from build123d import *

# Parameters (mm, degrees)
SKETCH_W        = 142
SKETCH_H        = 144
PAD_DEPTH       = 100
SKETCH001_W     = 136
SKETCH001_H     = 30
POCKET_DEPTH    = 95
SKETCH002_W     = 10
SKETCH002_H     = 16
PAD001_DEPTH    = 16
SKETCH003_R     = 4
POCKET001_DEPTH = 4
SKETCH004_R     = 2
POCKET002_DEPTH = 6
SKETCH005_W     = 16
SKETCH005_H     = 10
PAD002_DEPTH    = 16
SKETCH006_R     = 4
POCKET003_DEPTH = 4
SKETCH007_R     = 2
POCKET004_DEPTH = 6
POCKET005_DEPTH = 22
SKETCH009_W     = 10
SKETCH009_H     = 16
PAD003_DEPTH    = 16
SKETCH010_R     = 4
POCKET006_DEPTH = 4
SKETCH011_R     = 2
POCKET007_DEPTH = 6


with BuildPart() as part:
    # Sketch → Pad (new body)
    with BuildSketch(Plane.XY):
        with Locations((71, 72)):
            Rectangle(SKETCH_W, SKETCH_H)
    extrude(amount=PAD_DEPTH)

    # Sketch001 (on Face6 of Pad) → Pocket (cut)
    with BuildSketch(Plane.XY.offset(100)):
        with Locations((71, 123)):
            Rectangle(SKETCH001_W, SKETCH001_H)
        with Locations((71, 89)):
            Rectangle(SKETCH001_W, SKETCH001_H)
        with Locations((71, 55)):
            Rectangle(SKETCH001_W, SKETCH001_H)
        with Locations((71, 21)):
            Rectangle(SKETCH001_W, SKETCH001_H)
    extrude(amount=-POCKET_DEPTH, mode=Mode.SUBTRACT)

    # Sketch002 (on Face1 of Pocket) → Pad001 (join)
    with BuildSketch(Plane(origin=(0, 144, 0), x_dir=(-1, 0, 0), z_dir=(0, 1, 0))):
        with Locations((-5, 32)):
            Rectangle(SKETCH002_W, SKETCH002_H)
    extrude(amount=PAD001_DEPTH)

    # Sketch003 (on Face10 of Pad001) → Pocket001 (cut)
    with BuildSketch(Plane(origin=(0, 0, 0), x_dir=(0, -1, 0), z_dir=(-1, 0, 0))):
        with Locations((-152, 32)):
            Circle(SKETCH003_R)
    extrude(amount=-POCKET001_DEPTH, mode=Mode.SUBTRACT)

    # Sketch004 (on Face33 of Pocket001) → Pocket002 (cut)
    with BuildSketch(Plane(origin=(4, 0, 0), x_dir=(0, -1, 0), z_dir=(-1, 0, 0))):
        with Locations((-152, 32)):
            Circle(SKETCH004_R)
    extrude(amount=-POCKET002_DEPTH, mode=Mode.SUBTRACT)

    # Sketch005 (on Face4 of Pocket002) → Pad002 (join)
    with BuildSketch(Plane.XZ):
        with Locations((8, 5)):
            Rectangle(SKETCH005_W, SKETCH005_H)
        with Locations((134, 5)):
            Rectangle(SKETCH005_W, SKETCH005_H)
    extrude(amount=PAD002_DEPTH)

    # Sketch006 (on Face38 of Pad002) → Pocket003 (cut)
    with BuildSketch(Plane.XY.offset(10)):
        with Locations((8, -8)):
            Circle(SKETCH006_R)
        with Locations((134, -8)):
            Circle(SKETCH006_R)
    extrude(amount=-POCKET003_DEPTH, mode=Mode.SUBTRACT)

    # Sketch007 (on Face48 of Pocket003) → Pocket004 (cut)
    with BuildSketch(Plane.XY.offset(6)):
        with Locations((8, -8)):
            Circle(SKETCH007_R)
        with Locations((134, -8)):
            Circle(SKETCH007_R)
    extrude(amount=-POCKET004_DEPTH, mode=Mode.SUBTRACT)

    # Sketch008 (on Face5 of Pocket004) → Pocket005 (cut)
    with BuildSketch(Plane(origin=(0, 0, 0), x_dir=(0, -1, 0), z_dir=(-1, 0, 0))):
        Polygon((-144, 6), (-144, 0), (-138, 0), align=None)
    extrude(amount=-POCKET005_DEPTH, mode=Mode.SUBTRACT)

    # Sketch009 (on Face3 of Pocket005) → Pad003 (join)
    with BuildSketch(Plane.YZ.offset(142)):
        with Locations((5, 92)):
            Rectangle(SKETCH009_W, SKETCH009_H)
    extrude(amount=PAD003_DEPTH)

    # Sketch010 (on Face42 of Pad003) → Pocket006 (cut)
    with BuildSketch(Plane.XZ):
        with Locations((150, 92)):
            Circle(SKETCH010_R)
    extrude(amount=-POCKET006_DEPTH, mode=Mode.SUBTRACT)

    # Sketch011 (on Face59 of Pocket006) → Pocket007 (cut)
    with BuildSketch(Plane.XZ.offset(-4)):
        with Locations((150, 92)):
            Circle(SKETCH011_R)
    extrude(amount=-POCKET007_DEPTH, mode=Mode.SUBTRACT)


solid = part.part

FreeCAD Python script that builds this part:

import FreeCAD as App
import Part
import Sketcher
Q = App.Units.Quantity

doc = App.newDocument("Part")
params = doc.addObject("Spreadsheet::Sheet", "Params")
for row, (alias, value) in enumerate([
    ("sketch1_width", "142 mm"),
    ("sketch1_height", "144 mm"),
    ("pad1_length", "100 mm"),
    ("sketch2_width", "136 mm"),
    ("sketch2_height", "30 mm"),
    ("pocket1_length", "95 mm"),
    ("sketch3_width", "10 mm"),
    ("sketch3_height", "16 mm"),
    ("pad2_length", "16 mm"),
    ("sketch4_diameter", "8 mm"),
    ("pocket2_length", "4 mm"),
    ("sketch5_diameter", "4 mm"),
    ("pocket3_length", "6 mm"),
    ("sketch6_width", "16 mm"),
    ("sketch6_height", "10 mm"),
    ("pad3_length", "16 mm"),
    ("sketch7_diameter", "8 mm"),
    ("pocket4_length", "4 mm"),
    ("sketch8_diameter", "4 mm"),
    ("pocket5_length", "6 mm"),
    ("sketch9_width", "6 mm"),
    ("pocket6_length", "22 mm"),
    ("sketch10_width", "10 mm"),
    ("sketch10_height", "16 mm"),
    ("pad4_length", "16 mm"),
    ("sketch11_diameter", "8 mm"),
    ("pocket7_length", "4 mm"),
    ("sketch12_diameter", "4 mm"),
    ("pocket8_length", "6 mm"),
], start=1):
    params.set(f"A{row}", alias)
    params.set(f"B{row}", "=" + value)
    params.setAlias(f"B{row}", alias)

body = doc.addObject("PartDesign::Body", "Body")

# Sketch on XY plane
sketch1 = body.newObject("Sketcher::SketchObject", "Sketch")
sketch1.AttachmentSupport = (doc.getObject("XY_Plane"), [""])
sketch1.MapMode = "FlatFace"
sketch1.addGeometry([
    Part.LineSegment(App.Vector(0, 144, 0), App.Vector(0, 0, 0)),
    Part.LineSegment(App.Vector(0, 0, 0), App.Vector(142, 0, 0)),
    Part.LineSegment(App.Vector(142, 0, 0), App.Vector(142, 144, 0)),
    Part.LineSegment(App.Vector(142, 144, 0), App.Vector(0, 144, 0)),
], False)
sketch1.addConstraint([
    Sketcher.Constraint("Coincident", 0, 2, 1, 1),
    Sketcher.Constraint("Coincident", 1, 2, 2, 1),
    Sketcher.Constraint("Coincident", 2, 2, 3, 1),
    Sketcher.Constraint("Coincident", 3, 2, 0, 1),
    Sketcher.Constraint("Vertical", 0),
    Sketcher.Constraint("Horizontal", 1),
    Sketcher.Constraint("Vertical", 2),
    Sketcher.Constraint("Horizontal", 3),
    Sketcher.Constraint("Coincident", 0, 2, -1, 1),
    Sketcher.Constraint("DistanceX", 1, 1, 1, 2, Q("142 mm")),
    Sketcher.Constraint("DistanceY", 0, 2, 0, 1, Q("144 mm")),
])
sketch1.setExpression("Constraints[9]", "Params.sketch1_width")
sketch1.setExpression("Constraints[10]", "Params.sketch1_height")
pad1 = body.newObject("PartDesign::Pad", "Pad")
pad1.Profile = sketch1
pad1.setExpression("Length", "Params.pad1_length")

# Sketch on XY plane
sketch2 = body.newObject("Sketcher::SketchObject", "Sketch001")
sketch2.AttachmentSupport = (doc.getObject("XY_Plane"), [""])
sketch2.MapMode = "FlatFace"
sketch2.AttachmentOffset = App.Placement(App.Vector(0, 0, 100), App.Rotation())
sketch2.addGeometry([
    Part.LineSegment(App.Vector(3, 138, 0), App.Vector(3, 108, 0)),  # 0
    Part.LineSegment(App.Vector(3, 108, 0), App.Vector(139, 108, 0)),  # 1
    Part.LineSegment(App.Vector(139, 108, 0), App.Vector(139, 138, 0)),  # 2
    Part.LineSegment(App.Vector(139, 138, 0), App.Vector(3, 138, 0)),  # 3
    Part.LineSegment(App.Vector(3, 104, 0), App.Vector(3, 74, 0)),  # 4
    Part.LineSegment(App.Vector(3, 74, 0), App.Vector(139, 74, 0)),  # 5
    Part.LineSegment(App.Vector(139, 74, 0), App.Vector(139, 104, 0)),  # 6
    Part.LineSegment(App.Vector(139, 104, 0), App.Vector(3, 104, 0)),  # 7
    Part.LineSegment(App.Vector(3, 70, 0), App.Vector(3, 40, 0)),  # 8
    Part.LineSegment(App.Vector(3, 40, 0), App.Vector(139, 40, 0)),  # 9
    Part.LineSegment(App.Vector(139, 40, 0), App.Vector(139, 70, 0)),  # 10
    Part.LineSegment(App.Vector(139, 70, 0), App.Vector(3, 70, 0)),  # 11
    Part.LineSegment(App.Vector(3, 36, 0), App.Vector(3, 6, 0)),  # 12
    Part.LineSegment(App.Vector(3, 6, 0), App.Vector(139, 6, 0)),  # 13
    Part.LineSegment(App.Vector(139, 6, 0), App.Vector(139, 36, 0)),  # 14
    Part.LineSegment(App.Vector(139, 36, 0), App.Vector(3, 36, 0)),  # 15
], False)
sketch2.addConstraint([
    Sketcher.Constraint("Coincident", 0, 2, 1, 1),
    Sketcher.Constraint("Coincident", 1, 2, 2, 1),
    Sketcher.Constraint("Coincident", 2, 2, 3, 1),
    Sketcher.Constraint("Coincident", 3, 2, 0, 1),
    Sketcher.Constraint("Coincident", 4, 2, 5, 1),
    Sketcher.Constraint("Coincident", 5, 2, 6, 1),
    Sketcher.Constraint("Coincident", 6, 2, 7, 1),
    Sketcher.Constraint("Coincident", 7, 2, 4, 1),
    Sketcher.Constraint("Coincident", 8, 2, 9, 1),
    Sketcher.Constraint("Coincident", 9, 2, 10, 1),
    Sketcher.Constraint("Coincident", 10, 2, 11, 1),
    Sketcher.Constraint("Coincident", 11, 2, 8, 1),
    Sketcher.Constraint("Coincident", 12, 2, 13, 1),
    Sketcher.Constraint("Coincident", 13, 2, 14, 1),
    Sketcher.Constraint("Coincident", 14, 2, 15, 1),
    Sketcher.Constraint("Coincident", 15, 2, 12, 1),
    Sketcher.Constraint("Vertical", 0),
    Sketcher.Constraint("Horizontal", 1),
    Sketcher.Constraint("Vertical", 2),
    Sketcher.Constraint("Horizontal", 3),
    Sketcher.Constraint("Vertical", 4),
    Sketcher.Constraint("Horizontal", 5),
    Sketcher.Constraint("Vertical", 6),
    Sketcher.Constraint("Horizontal", 7),
    Sketcher.Constraint("Vertical", 8),
    Sketcher.Constraint("Horizontal", 9),
    Sketcher.Constraint("Vertical", 10),
    Sketcher.Constraint("Horizontal", 11),
    Sketcher.Constraint("Vertical", 12),
    Sketcher.Constraint("Horizontal", 13),
    Sketcher.Constraint("Vertical", 14),
    Sketcher.Constraint("Horizontal", 15),
    Sketcher.Constraint("Vertical", 3, 2, 4, 2),
    Sketcher.Constraint("Vertical", 2, 2, 5, 2),
    Sketcher.Constraint("Vertical", 7, 2, 8, 2),
    Sketcher.Constraint("Vertical", 6, 2, 9, 2),
    Sketcher.Constraint("Vertical", 11, 2, 12, 2),
    Sketcher.Constraint("Vertical", 10, 2, 13, 2),
    Sketcher.Constraint("Equal", 2, 4),
    Sketcher.Constraint("Equal", 6, 8),
    Sketcher.Constraint("Equal", 10, 12),
    Sketcher.Constraint("DistanceX", 1, 1, 1, 2, Q("136 mm")),
    Sketcher.Constraint("DistanceY", 0, 2, 0, 1, Q("30 mm")),
    Sketcher.Constraint("DistanceX", -1, 1, 0, 2, Q("3 mm")),
    Sketcher.Constraint("DistanceY", -1, 1, 0, 2, Q("108 mm")),
    Sketcher.Constraint("DistanceY", -1, 1, 4, 2, Q("74 mm")),
    Sketcher.Constraint("DistanceY", -1, 1, 8, 2, Q("40 mm")),
    Sketcher.Constraint("DistanceY", -1, 1, 12, 2, Q("6 mm")),
])
sketch2.setExpression("Constraints[41]", "Params.sketch2_width")
sketch2.setExpression("Constraints[42]", "Params.sketch2_height")
pocket1 = body.newObject("PartDesign::Pocket", "Pocket")
pocket1.Profile = sketch2
pocket1.setExpression("Length", "Params.pocket1_length")

# Sketch on XZ plane
sketch3 = body.newObject("Sketcher::SketchObject", "Sketch002")
sketch3.AttachmentSupport = (doc.getObject("XZ_Plane"), [""])
sketch3.MapMode = "FlatFace"
sketch3.AttachmentOffset = App.Placement(App.Vector(0, 0, -144), App.Rotation())
sketch3.addGeometry([
    Part.LineSegment(App.Vector(10, 40, 0), App.Vector(10, 24, 0)),
    Part.LineSegment(App.Vector(10, 24, 0), App.Vector(0, 24, 0)),
    Part.LineSegment(App.Vector(0, 24, 0), App.Vector(0, 40, 0)),
    Part.LineSegment(App.Vector(0, 40, 0), App.Vector(10, 40, 0)),
], False)
sketch3.addConstraint([
    Sketcher.Constraint("Coincident", 0, 2, 1, 1),
    Sketcher.Constraint("Coincident", 1, 2, 2, 1),
    Sketcher.Constraint("Coincident", 2, 2, 3, 1),
    Sketcher.Constraint("Coincident", 3, 2, 0, 1),
    Sketcher.Constraint("Vertical", 0),
    Sketcher.Constraint("Horizontal", 1),
    Sketcher.Constraint("Vertical", 2),
    Sketcher.Constraint("Horizontal", 3),
    Sketcher.Constraint("PointOnObject", 1, 2, -2),
    Sketcher.Constraint("DistanceX", 1, 2, 1, 1, Q("10 mm")),
    Sketcher.Constraint("DistanceY", 0, 2, 0, 1, Q("16 mm")),
    Sketcher.Constraint("DistanceY", -1, 1, 0, 2, Q("24 mm")),
])
sketch3.setExpression("Constraints[9]", "Params.sketch3_width")
sketch3.setExpression("Constraints[10]", "Params.sketch3_height")
pad2 = body.newObject("PartDesign::Pad", "Pad001")
pad2.Profile = sketch3
pad2.setExpression("Length", "Params.pad2_length")
pad2.Reversed = True

# Sketch on YZ plane
sketch4 = body.newObject("Sketcher::SketchObject", "Sketch003")
sketch4.AttachmentSupport = (doc.getObject("YZ_Plane"), [""])
sketch4.MapMode = "FlatFace"
sketch4.addGeometry(Part.Circle(App.Vector(152, 32, 0), App.Vector(0, 0, 1), 4), False)
sketch4.addConstraint([
    Sketcher.Constraint("Diameter", 0, Q("8 mm")),
    Sketcher.Constraint("DistanceX", -1, 1, 0, 3, Q("152 mm")),
    Sketcher.Constraint("DistanceY", -1, 1, 0, 3, Q("32 mm")),
])
sketch4.setExpression("Constraints[0]", "Params.sketch4_diameter")
pocket2 = body.newObject("PartDesign::Pocket", "Pocket001")
pocket2.Profile = sketch4
pocket2.setExpression("Length", "Params.pocket2_length")
pocket2.Reversed = True

# Sketch on YZ plane
sketch5 = body.newObject("Sketcher::SketchObject", "Sketch004")
sketch5.AttachmentSupport = (doc.getObject("YZ_Plane"), [""])
sketch5.MapMode = "FlatFace"
sketch5.AttachmentOffset = App.Placement(App.Vector(0, 0, 4), App.Rotation())
sketch5.addGeometry(Part.Circle(App.Vector(152, 32, 0), App.Vector(0, 0, 1), 2), False)
sketch5.addConstraint([
    Sketcher.Constraint("Diameter", 0, Q("4 mm")),
    Sketcher.Constraint("DistanceX", -1, 1, 0, 3, Q("152 mm")),
    Sketcher.Constraint("DistanceY", -1, 1, 0, 3, Q("32 mm")),
])
sketch5.setExpression("Constraints[0]", "Params.sketch5_diameter")
pocket3 = body.newObject("PartDesign::Pocket", "Pocket002")
pocket3.Profile = sketch5
pocket3.setExpression("Length", "Params.pocket3_length")
pocket3.Reversed = True

# Sketch on XZ plane
sketch6 = body.newObject("Sketcher::SketchObject", "Sketch005")
sketch6.AttachmentSupport = (doc.getObject("XZ_Plane"), [""])
sketch6.MapMode = "FlatFace"
sketch6.addGeometry([
    Part.LineSegment(App.Vector(0, 10, 0), App.Vector(0, 0, 0)),  # 0
    Part.LineSegment(App.Vector(0, 0, 0), App.Vector(16, 0, 0)),  # 1
    Part.LineSegment(App.Vector(16, 0, 0), App.Vector(16, 10, 0)),  # 2
    Part.LineSegment(App.Vector(16, 10, 0), App.Vector(0, 10, 0)),  # 3
    Part.LineSegment(App.Vector(126, 10, 0), App.Vector(126, 0, 0)),  # 4
    Part.LineSegment(App.Vector(126, 0, 0), App.Vector(142, 0, 0)),  # 5
    Part.LineSegment(App.Vector(142, 0, 0), App.Vector(142, 10, 0)),  # 6
    Part.LineSegment(App.Vector(142, 10, 0), App.Vector(126, 10, 0)),  # 7
], False)
sketch6.addConstraint([
    Sketcher.Constraint("Coincident", 0, 2, 1, 1),
    Sketcher.Constraint("Coincident", 1, 2, 2, 1),
    Sketcher.Constraint("Coincident", 2, 2, 3, 1),
    Sketcher.Constraint("Coincident", 3, 2, 0, 1),
    Sketcher.Constraint("Coincident", 4, 2, 5, 1),
    Sketcher.Constraint("Coincident", 5, 2, 6, 1),
    Sketcher.Constraint("Coincident", 6, 2, 7, 1),
    Sketcher.Constraint("Coincident", 7, 2, 4, 1),
    Sketcher.Constraint("Vertical", 0),
    Sketcher.Constraint("Horizontal", 1),
    Sketcher.Constraint("Vertical", 2),
    Sketcher.Constraint("Horizontal", 3),
    Sketcher.Constraint("Vertical", 4),
    Sketcher.Constraint("Horizontal", 5),
    Sketcher.Constraint("Vertical", 6),
    Sketcher.Constraint("Horizontal", 7),
    Sketcher.Constraint("Coincident", 0, 2, -1, 1),
    Sketcher.Constraint("PointOnObject", 4, 2, -1),
    Sketcher.Constraint("Horizontal", 3, 2, 6, 2),
    Sketcher.Constraint("Equal", 3, 5),
    Sketcher.Constraint("DistanceX", 1, 1, 1, 2, Q("16 mm")),
    Sketcher.Constraint("DistanceY", 0, 2, 0, 1, Q("10 mm")),
    Sketcher.Constraint("DistanceX", -1, 1, 4, 2, Q("126 mm")),
])
sketch6.setExpression("Constraints[20]", "Params.sketch6_width")
sketch6.setExpression("Constraints[21]", "Params.sketch6_height")
pad3 = body.newObject("PartDesign::Pad", "Pad002")
pad3.Profile = sketch6
pad3.setExpression("Length", "Params.pad3_length")

# Sketch on XY plane
sketch7 = body.newObject("Sketcher::SketchObject", "Sketch006")
sketch7.AttachmentSupport = (doc.getObject("XY_Plane"), [""])
sketch7.MapMode = "FlatFace"
sketch7.AttachmentOffset = App.Placement(App.Vector(0, 0, 10), App.Rotation())
sketch7.addGeometry([
    Part.Circle(App.Vector(8, -8, 0), App.Vector(0, 0, 1), 4),
    Part.Circle(App.Vector(134, -8, 0), App.Vector(0, 0, 1), 4),
], False)
sketch7.addConstraint([
    Sketcher.Constraint("Equal", 0, 1),
    Sketcher.Constraint("Horizontal", 0, 3, 1, 3),
    Sketcher.Constraint("Diameter", 0, Q("8 mm")),
    Sketcher.Constraint("DistanceX", -1, 1, 0, 3, Q("8 mm")),
    Sketcher.Constraint("DistanceY", 0, 3, -1, 1, Q("8 mm")),
    Sketcher.Constraint("DistanceX", -1, 1, 1, 3, Q("134 mm")),
])
sketch7.setExpression("Constraints[2]", "Params.sketch7_diameter")
pocket4 = body.newObject("PartDesign::Pocket", "Pocket003")
pocket4.Profile = sketch7
pocket4.setExpression("Length", "Params.pocket4_length")

# Sketch on XY plane
sketch8 = body.newObject("Sketcher::SketchObject", "Sketch007")
sketch8.AttachmentSupport = (doc.getObject("XY_Plane"), [""])
sketch8.MapMode = "FlatFace"
sketch8.AttachmentOffset = App.Placement(App.Vector(0, 0, 6), App.Rotation())
sketch8.addGeometry([
    Part.Circle(App.Vector(8, -8, 0), App.Vector(0, 0, 1), 2),
    Part.Circle(App.Vector(134, -8, 0), App.Vector(0, 0, 1), 2),
], False)
sketch8.addConstraint([
    Sketcher.Constraint("Equal", 0, 1),
    Sketcher.Constraint("Horizontal", 0, 3, 1, 3),
    Sketcher.Constraint("Diameter", 0, Q("4 mm")),
    Sketcher.Constraint("DistanceX", -1, 1, 0, 3, Q("8 mm")),
    Sketcher.Constraint("DistanceY", 0, 3, -1, 1, Q("8 mm")),
    Sketcher.Constraint("DistanceX", -1, 1, 1, 3, Q("134 mm")),
])
sketch8.setExpression("Constraints[2]", "Params.sketch8_diameter")
pocket5 = body.newObject("PartDesign::Pocket", "Pocket004")
pocket5.Profile = sketch8
pocket5.setExpression("Length", "Params.pocket5_length")

# Sketch on YZ plane
sketch9 = body.newObject("Sketcher::SketchObject", "Sketch008")
sketch9.AttachmentSupport = (doc.getObject("YZ_Plane"), [""])
sketch9.MapMode = "FlatFace"
sketch9.addGeometry([
    Part.LineSegment(App.Vector(144, 6, 0), App.Vector(144, 0, 0)),
    Part.LineSegment(App.Vector(144, 0, 0), App.Vector(138, 0, 0)),
    Part.LineSegment(App.Vector(138, 0, 0), App.Vector(144, 6, 0)),
], False)
sketch9.addConstraint([
    Sketcher.Constraint("Coincident", 0, 2, 1, 1),
    Sketcher.Constraint("Coincident", 1, 2, 2, 1),
    Sketcher.Constraint("Coincident", 2, 2, 0, 1),
    Sketcher.Constraint("Vertical", 0),
    Sketcher.Constraint("Horizontal", 1),
    Sketcher.Constraint("PointOnObject", 0, 2, -1),
    Sketcher.Constraint("Equal", 1, 0),
    Sketcher.Constraint("DistanceX", 1, 2, 1, 1, Q("6 mm")),
    Sketcher.Constraint("DistanceX", -1, 1, 0, 2, Q("144 mm")),
])
sketch9.setExpression("Constraints[7]", "Params.sketch9_width")
pocket6 = body.newObject("PartDesign::Pocket", "Pocket005")
pocket6.Profile = sketch9
pocket6.setExpression("Length", "Params.pocket6_length")
pocket6.Reversed = True

# Sketch on YZ plane
sketch10 = body.newObject("Sketcher::SketchObject", "Sketch009")
sketch10.AttachmentSupport = (doc.getObject("YZ_Plane"), [""])
sketch10.MapMode = "FlatFace"
sketch10.AttachmentOffset = App.Placement(App.Vector(0, 0, 142), App.Rotation())
sketch10.addGeometry([
    Part.LineSegment(App.Vector(0, 100, 0), App.Vector(0, 84, 0)),
    Part.LineSegment(App.Vector(0, 84, 0), App.Vector(10, 84, 0)),
    Part.LineSegment(App.Vector(10, 84, 0), App.Vector(10, 100, 0)),
    Part.LineSegment(App.Vector(10, 100, 0), App.Vector(0, 100, 0)),
], False)
sketch10.addConstraint([
    Sketcher.Constraint("Coincident", 0, 2, 1, 1),
    Sketcher.Constraint("Coincident", 1, 2, 2, 1),
    Sketcher.Constraint("Coincident", 2, 2, 3, 1),
    Sketcher.Constraint("Coincident", 3, 2, 0, 1),
    Sketcher.Constraint("Vertical", 0),
    Sketcher.Constraint("Horizontal", 1),
    Sketcher.Constraint("Vertical", 2),
    Sketcher.Constraint("Horizontal", 3),
    Sketcher.Constraint("PointOnObject", 0, 2, -2),
    Sketcher.Constraint("DistanceX", 1, 1, 1, 2, Q("10 mm")),
    Sketcher.Constraint("DistanceY", 0, 2, 0, 1, Q("16 mm")),
    Sketcher.Constraint("DistanceY", -1, 1, 0, 2, Q("84 mm")),
])
sketch10.setExpression("Constraints[9]", "Params.sketch10_width")
sketch10.setExpression("Constraints[10]", "Params.sketch10_height")
pad4 = body.newObject("PartDesign::Pad", "Pad003")
pad4.Profile = sketch10
pad4.setExpression("Length", "Params.pad4_length")

# Sketch on XZ plane
sketch11 = body.newObject("Sketcher::SketchObject", "Sketch010")
sketch11.AttachmentSupport = (doc.getObject("XZ_Plane"), [""])
sketch11.MapMode = "FlatFace"
sketch11.addGeometry(Part.Circle(App.Vector(150, 92, 0), App.Vector(0, 0, 1), 4), False)
sketch11.addConstraint([
    Sketcher.Constraint("Diameter", 0, Q("8 mm")),
    Sketcher.Constraint("DistanceX", -1, 1, 0, 3, Q("150 mm")),
    Sketcher.Constraint("DistanceY", -1, 1, 0, 3, Q("92 mm")),
])
sketch11.setExpression("Constraints[0]", "Params.sketch11_diameter")
pocket7 = body.newObject("PartDesign::Pocket", "Pocket006")
pocket7.Profile = sketch11
pocket7.setExpression("Length", "Params.pocket7_length")

# Sketch on XZ plane
sketch12 = body.newObject("Sketcher::SketchObject", "Sketch011")
sketch12.AttachmentSupport = (doc.getObject("XZ_Plane"), [""])
sketch12.MapMode = "FlatFace"
sketch12.AttachmentOffset = App.Placement(App.Vector(0, 0, -4), App.Rotation())
sketch12.addGeometry(Part.Circle(App.Vector(150, 92, 0), App.Vector(0, 0, 1), 2), False)
sketch12.addConstraint([
    Sketcher.Constraint("Diameter", 0, Q("4 mm")),
    Sketcher.Constraint("DistanceX", -1, 1, 0, 3, Q("150 mm")),
    Sketcher.Constraint("DistanceY", -1, 1, 0, 3, Q("92 mm")),
])
sketch12.setExpression("Constraints[0]", "Params.sketch12_diameter")
pocket8 = body.newObject("PartDesign::Pocket", "Pocket007")
pocket8.Profile = sketch12
pocket8.setExpression("Length", "Params.pocket8_length")

doc.recompute()
